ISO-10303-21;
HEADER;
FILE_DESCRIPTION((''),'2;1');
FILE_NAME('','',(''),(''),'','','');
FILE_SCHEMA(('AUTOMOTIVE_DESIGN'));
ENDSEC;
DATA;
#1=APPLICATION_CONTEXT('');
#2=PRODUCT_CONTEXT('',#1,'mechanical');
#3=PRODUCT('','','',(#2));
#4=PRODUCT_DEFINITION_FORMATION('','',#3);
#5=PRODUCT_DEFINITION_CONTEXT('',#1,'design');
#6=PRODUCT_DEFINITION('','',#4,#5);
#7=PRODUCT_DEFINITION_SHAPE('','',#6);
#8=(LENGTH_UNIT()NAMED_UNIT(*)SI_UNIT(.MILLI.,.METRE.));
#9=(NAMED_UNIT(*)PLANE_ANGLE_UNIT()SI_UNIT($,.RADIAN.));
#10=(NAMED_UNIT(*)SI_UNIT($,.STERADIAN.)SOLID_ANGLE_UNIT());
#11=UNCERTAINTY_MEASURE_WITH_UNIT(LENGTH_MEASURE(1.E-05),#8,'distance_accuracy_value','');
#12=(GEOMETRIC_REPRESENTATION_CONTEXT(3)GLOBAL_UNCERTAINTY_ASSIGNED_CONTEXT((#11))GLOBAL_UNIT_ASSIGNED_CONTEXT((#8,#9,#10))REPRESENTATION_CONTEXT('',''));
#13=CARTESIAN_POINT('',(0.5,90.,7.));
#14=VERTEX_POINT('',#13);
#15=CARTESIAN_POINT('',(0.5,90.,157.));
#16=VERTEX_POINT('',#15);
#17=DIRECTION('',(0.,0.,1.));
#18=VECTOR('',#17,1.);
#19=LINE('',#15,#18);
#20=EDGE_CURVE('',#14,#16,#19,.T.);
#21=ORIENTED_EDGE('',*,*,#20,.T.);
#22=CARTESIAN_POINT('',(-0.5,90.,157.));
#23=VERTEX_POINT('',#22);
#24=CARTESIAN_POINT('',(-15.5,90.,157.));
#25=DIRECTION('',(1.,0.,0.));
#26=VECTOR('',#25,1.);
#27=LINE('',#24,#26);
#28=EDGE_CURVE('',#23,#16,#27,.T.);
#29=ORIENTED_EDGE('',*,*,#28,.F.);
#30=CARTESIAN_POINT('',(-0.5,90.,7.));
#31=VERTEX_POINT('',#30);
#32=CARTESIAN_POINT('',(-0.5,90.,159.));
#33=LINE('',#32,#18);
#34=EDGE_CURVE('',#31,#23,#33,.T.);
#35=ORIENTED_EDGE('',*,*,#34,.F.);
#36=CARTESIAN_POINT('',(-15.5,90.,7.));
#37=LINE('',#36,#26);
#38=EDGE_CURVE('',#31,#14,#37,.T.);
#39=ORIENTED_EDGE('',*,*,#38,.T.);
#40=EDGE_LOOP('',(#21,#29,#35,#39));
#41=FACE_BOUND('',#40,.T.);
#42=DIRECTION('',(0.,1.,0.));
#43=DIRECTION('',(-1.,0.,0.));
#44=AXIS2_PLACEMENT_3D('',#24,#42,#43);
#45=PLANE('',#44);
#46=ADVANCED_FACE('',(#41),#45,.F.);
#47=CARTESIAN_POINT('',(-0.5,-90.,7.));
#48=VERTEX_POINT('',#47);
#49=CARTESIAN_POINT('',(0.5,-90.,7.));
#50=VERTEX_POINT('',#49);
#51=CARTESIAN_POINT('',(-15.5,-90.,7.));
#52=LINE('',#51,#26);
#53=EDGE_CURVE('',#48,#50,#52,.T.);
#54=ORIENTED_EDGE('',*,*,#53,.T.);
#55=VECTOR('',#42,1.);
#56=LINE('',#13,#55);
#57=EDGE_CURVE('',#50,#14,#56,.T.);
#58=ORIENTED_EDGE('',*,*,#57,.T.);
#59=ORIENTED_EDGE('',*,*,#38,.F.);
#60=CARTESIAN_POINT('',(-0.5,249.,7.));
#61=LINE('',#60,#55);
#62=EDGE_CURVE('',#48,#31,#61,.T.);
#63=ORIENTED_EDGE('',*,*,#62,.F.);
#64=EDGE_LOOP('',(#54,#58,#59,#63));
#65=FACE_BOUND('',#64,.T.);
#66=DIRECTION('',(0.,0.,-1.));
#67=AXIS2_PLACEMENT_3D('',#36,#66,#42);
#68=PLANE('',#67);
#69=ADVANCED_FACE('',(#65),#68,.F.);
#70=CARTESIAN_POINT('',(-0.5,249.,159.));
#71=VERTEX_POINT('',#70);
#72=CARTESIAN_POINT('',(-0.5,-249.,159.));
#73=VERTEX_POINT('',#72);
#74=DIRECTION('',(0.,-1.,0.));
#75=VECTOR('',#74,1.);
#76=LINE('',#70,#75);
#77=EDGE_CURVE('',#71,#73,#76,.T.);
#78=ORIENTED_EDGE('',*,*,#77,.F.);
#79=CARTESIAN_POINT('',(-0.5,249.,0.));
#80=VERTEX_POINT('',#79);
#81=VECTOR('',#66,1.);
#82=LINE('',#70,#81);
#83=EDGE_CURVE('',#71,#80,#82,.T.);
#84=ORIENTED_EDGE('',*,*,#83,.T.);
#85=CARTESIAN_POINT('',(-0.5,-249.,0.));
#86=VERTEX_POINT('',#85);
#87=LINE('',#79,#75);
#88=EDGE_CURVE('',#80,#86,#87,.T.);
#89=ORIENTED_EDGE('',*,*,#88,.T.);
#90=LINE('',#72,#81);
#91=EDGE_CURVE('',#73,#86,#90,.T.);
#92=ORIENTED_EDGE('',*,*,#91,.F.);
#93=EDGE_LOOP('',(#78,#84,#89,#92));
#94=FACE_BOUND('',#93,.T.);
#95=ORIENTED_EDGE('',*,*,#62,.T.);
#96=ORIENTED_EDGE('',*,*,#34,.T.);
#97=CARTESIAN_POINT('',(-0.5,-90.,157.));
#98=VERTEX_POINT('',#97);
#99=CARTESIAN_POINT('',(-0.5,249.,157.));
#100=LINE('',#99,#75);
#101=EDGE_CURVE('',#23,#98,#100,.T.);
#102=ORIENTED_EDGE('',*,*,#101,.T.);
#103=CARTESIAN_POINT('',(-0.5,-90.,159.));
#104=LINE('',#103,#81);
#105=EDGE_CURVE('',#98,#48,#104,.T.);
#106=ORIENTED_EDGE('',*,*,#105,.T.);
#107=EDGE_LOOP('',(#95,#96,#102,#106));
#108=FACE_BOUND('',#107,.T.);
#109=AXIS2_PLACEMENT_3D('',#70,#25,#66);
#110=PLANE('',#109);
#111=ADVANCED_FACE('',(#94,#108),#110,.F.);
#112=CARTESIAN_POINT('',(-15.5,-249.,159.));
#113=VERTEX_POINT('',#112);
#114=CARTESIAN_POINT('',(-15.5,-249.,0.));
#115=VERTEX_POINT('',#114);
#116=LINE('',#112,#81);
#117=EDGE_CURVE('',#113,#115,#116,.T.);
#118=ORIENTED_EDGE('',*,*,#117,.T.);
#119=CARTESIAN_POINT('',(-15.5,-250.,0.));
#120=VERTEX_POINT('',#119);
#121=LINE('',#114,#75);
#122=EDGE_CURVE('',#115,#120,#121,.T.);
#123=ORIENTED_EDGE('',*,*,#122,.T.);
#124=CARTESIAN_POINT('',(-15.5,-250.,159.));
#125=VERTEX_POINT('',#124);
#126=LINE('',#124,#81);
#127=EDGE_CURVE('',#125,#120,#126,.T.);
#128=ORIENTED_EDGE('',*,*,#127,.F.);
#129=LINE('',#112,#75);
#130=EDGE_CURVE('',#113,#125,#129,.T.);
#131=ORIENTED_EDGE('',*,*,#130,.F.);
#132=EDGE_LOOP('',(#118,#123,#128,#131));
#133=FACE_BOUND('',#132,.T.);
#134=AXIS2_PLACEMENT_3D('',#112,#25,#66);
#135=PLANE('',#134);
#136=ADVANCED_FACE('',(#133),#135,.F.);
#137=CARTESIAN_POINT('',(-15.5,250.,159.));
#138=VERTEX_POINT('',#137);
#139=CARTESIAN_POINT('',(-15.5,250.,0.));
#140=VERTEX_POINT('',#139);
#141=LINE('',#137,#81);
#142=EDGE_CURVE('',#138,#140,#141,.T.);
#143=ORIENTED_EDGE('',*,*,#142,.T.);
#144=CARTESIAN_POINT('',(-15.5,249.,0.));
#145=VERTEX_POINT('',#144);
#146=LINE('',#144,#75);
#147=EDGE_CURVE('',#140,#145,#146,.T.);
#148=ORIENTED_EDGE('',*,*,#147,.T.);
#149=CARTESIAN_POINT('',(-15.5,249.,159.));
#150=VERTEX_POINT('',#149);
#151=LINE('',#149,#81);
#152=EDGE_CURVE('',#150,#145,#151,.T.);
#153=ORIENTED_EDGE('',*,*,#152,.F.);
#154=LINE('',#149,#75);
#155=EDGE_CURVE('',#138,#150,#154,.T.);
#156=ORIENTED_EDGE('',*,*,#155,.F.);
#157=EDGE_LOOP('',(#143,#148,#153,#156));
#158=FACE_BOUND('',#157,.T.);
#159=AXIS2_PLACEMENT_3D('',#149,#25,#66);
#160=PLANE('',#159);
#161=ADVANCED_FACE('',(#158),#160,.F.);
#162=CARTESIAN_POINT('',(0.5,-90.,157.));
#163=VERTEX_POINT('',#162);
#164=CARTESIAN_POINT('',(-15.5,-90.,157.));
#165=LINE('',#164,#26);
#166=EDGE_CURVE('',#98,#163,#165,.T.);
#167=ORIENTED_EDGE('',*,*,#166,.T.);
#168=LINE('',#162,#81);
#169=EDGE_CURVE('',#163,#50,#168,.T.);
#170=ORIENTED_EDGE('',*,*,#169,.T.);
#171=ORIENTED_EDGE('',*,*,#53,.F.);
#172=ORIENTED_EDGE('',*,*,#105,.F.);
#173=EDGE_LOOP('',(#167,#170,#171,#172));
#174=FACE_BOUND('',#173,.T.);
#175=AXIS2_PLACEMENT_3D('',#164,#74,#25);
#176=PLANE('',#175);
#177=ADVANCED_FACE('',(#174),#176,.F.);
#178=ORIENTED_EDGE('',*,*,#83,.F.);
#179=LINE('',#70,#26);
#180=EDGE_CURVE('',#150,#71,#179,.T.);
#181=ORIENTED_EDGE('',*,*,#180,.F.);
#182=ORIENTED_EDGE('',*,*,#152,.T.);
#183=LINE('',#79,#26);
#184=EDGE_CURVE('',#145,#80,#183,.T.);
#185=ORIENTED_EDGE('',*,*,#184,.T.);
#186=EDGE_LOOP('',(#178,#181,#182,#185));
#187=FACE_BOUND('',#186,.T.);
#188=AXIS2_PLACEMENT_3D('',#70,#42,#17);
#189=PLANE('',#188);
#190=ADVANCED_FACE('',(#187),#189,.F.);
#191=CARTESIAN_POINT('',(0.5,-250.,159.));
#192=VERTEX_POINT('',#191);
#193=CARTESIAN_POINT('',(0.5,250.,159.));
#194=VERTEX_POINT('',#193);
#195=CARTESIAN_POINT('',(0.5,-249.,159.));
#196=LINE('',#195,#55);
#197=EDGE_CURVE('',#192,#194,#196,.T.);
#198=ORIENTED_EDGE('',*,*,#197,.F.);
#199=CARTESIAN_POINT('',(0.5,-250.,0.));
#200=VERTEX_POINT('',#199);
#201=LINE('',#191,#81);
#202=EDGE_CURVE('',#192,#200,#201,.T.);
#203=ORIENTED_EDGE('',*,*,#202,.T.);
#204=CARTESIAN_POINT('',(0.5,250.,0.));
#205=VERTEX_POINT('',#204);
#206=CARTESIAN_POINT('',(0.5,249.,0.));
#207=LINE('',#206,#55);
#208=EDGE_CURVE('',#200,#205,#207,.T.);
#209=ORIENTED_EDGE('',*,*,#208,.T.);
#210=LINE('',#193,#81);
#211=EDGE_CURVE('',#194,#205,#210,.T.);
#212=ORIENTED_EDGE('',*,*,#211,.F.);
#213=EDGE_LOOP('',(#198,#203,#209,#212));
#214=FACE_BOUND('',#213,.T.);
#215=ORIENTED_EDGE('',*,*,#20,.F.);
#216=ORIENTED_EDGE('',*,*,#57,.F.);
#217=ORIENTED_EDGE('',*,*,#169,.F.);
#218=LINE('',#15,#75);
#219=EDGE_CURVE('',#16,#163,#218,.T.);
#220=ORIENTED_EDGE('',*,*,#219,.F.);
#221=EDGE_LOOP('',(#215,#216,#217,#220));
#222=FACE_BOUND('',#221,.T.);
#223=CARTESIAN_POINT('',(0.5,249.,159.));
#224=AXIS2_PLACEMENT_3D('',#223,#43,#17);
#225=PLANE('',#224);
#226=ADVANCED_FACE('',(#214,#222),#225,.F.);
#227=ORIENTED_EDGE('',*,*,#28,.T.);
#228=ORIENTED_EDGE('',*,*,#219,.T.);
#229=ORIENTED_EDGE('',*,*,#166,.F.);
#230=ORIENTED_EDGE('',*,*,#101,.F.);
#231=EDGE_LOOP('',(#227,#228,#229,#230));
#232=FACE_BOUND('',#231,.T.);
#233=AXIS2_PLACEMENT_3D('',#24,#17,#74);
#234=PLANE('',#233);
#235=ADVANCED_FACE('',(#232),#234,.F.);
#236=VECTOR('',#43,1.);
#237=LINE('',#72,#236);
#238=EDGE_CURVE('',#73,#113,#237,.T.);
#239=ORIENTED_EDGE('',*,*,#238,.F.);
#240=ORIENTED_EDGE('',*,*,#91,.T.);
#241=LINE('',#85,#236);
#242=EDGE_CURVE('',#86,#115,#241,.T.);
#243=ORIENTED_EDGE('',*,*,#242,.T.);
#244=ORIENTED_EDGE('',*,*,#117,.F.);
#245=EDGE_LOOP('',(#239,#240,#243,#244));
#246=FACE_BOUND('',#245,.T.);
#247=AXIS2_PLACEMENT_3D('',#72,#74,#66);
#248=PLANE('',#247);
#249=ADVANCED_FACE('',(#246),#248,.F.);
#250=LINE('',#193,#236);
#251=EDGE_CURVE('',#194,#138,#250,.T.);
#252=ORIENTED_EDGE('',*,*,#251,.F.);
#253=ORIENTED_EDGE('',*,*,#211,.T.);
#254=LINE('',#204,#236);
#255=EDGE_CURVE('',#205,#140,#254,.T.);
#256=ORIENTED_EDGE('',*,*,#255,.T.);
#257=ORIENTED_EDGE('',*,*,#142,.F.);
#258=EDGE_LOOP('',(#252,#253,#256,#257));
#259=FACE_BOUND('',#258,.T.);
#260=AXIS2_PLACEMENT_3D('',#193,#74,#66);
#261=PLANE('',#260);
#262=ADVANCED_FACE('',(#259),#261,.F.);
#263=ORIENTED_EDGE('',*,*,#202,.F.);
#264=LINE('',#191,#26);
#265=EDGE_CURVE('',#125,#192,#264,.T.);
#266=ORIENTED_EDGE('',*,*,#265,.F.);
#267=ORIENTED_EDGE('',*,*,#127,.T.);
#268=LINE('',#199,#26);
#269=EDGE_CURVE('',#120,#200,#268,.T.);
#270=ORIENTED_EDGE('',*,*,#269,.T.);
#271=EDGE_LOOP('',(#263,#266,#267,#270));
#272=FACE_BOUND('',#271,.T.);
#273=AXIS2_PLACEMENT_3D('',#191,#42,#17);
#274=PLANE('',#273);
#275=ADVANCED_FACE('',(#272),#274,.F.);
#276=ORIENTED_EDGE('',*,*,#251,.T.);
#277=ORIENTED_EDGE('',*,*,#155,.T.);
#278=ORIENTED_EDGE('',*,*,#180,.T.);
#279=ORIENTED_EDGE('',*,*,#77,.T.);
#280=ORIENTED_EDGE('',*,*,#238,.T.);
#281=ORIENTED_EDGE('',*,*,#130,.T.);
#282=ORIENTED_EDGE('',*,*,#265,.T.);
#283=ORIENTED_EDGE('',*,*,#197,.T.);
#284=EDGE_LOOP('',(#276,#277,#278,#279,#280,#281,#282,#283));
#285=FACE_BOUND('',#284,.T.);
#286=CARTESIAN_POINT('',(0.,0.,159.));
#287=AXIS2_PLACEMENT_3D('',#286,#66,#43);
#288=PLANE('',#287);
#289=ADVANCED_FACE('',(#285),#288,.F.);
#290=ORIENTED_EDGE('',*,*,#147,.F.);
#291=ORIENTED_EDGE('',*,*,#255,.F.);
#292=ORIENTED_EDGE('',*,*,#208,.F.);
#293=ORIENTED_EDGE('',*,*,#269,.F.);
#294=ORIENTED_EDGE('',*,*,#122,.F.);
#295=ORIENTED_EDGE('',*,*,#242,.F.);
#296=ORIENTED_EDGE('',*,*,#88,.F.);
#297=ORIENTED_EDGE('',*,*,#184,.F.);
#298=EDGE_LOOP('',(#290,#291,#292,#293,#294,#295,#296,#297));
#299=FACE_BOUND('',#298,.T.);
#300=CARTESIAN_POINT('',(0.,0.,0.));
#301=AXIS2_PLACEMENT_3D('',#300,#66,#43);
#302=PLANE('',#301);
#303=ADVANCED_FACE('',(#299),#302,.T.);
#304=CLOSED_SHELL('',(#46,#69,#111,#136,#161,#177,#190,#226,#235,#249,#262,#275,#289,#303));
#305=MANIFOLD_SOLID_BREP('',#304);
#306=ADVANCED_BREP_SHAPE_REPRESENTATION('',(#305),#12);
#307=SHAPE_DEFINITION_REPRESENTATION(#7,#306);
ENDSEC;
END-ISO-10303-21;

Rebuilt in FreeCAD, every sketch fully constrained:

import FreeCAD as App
import Part
import Sketcher
from FreeCAD import Vector


def add_polygon(sketch, points):
    """Adds a closed chain of lines whose ends are joined by coincident constraints."""
    first, n = sketch.GeometryCount, len(points)
    for a, b in zip(points, points[1:] + points[:1]):
        sketch.addGeometry(Part.LineSegment(App.Vector(*a, 0), App.Vector(*b, 0)), False)
    for i in range(n):
        sketch.addConstraint(Sketcher.Constraint("Coincident", first + i, 2, first + (i + 1) % n, 1))

doc = App.newDocument("Part")
params = doc.addObject("Spreadsheet::Sheet", "Params")
for row, (alias, value) in enumerate([
    ("sketch1_width", "15 mm"),
    ("sketch1_width2", "16 mm"),
    ("sketch1_height", "1 mm"),
    ("sketch1_height2", "500 mm"),
    ("pad1_length", "159 mm"),
    ("sketch2_width", "180 mm"),
    ("sketch2_height", "150 mm"),
], start=1):
    params.set(f"A{row}", alias)
    params.set(f"B{row}", "=" + value)
    params.setAlias(f"B{row}", alias)

body = doc.addObject("PartDesign::Body", "Body")

sketch1 = doc.addObject("Sketcher::SketchObject", "Sketch")
body.addObject(sketch1)
sketch1.AttachmentSupport = (doc.XY_Plane, [""])
sketch1.MapMode = "FlatFace"
add_polygon(sketch1, [(-0.5, -249), (-15.5, -249), (-15.5, -250), (0.5, -250), (0.5, 250), (-15.5, 250), (-15.5, 249), (-0.5, 249)])
sketch1.addConstraint([
    Sketcher.Constraint("Horizontal", 0),
    Sketcher.Constraint("Vertical", 1),
    Sketcher.Constraint("Horizontal", 2),
    Sketcher.Constraint("Vertical", 3),
    Sketcher.Constraint("Horizontal", 4),
    Sketcher.Constraint("Vertical", 5),
    Sketcher.Constraint("Horizontal", 6),
    Sketcher.Constraint("Vertical", 7),
    Sketcher.Constraint("Symmetric", 1, 2, 4, 2, -1),
    Sketcher.Constraint("Equal", 1, 5),
    Sketcher.Constraint("DistanceX", 0, 2, 0, 1, 15.0),
    Sketcher.Constraint("DistanceX", 2, 1, 2, 2, 16.0),
    Sketcher.Constraint("DistanceY", 1, 2, 1, 1, 1.0),
    Sketcher.Constraint("DistanceY", 3, 1, 3, 2, 500.0),
    Sketcher.Constraint("DistanceX", 0, 2, -1, 1, 15.5),
])
sketch1.setExpression("Constraints[18]", "Params.sketch1_width")
sketch1.setExpression("Constraints[19]", "Params.sketch1_width2")
sketch1.setExpression("Constraints[20]", "Params.sketch1_height")
sketch1.setExpression("Constraints[21]", "Params.sketch1_height2")
pad1 = doc.addObject("PartDesign::Pad", "Pad")
body.addObject(pad1)
pad1.Profile = sketch1
pad1.setExpression("Length", "Params.pad1_length")

sketch2 = doc.addObject("Sketcher::SketchObject", "Sketch001")
body.addObject(sketch2)
sketch2.AttachmentSupport = (doc.YZ_Plane, [""])
sketch2.MapMode = "FlatFace"
sketch2.AttachmentOffset = App.Placement(Vector(0, 0, 0.5), App.Rotation())
add_polygon(sketch2, [(90, 157), (-90, 157), (-90, 7), (90, 7)])
sketch2.addConstraint([
    Sketcher.Constraint("Horizontal", 0),
    Sketcher.Constraint("Vertical", 1),
    Sketcher.Constraint("Horizontal", 2),
    Sketcher.Constraint("Vertical", 3),
    Sketcher.Constraint("DistanceX", 0, 2, 0, 1, 180.0),
    Sketcher.Constraint("DistanceY", 1, 2, 1, 1, 150.0),
    Sketcher.Constraint("DistanceX", 0, 2, -1, 1, 90.0),
    Sketcher.Constraint("DistanceY", -1, 1, 0, 2, 157.0),
])
sketch2.setExpression("Constraints[8]", "Params.sketch2_width")
sketch2.setExpression("Constraints[9]", "Params.sketch2_height")
pocket1 = doc.addObject("PartDesign::Pocket", "Pocket")
body.addObject(pocket1)
pocket1.Profile = sketch2
pocket1.Type = "ThroughAll"

doc.recompute()
